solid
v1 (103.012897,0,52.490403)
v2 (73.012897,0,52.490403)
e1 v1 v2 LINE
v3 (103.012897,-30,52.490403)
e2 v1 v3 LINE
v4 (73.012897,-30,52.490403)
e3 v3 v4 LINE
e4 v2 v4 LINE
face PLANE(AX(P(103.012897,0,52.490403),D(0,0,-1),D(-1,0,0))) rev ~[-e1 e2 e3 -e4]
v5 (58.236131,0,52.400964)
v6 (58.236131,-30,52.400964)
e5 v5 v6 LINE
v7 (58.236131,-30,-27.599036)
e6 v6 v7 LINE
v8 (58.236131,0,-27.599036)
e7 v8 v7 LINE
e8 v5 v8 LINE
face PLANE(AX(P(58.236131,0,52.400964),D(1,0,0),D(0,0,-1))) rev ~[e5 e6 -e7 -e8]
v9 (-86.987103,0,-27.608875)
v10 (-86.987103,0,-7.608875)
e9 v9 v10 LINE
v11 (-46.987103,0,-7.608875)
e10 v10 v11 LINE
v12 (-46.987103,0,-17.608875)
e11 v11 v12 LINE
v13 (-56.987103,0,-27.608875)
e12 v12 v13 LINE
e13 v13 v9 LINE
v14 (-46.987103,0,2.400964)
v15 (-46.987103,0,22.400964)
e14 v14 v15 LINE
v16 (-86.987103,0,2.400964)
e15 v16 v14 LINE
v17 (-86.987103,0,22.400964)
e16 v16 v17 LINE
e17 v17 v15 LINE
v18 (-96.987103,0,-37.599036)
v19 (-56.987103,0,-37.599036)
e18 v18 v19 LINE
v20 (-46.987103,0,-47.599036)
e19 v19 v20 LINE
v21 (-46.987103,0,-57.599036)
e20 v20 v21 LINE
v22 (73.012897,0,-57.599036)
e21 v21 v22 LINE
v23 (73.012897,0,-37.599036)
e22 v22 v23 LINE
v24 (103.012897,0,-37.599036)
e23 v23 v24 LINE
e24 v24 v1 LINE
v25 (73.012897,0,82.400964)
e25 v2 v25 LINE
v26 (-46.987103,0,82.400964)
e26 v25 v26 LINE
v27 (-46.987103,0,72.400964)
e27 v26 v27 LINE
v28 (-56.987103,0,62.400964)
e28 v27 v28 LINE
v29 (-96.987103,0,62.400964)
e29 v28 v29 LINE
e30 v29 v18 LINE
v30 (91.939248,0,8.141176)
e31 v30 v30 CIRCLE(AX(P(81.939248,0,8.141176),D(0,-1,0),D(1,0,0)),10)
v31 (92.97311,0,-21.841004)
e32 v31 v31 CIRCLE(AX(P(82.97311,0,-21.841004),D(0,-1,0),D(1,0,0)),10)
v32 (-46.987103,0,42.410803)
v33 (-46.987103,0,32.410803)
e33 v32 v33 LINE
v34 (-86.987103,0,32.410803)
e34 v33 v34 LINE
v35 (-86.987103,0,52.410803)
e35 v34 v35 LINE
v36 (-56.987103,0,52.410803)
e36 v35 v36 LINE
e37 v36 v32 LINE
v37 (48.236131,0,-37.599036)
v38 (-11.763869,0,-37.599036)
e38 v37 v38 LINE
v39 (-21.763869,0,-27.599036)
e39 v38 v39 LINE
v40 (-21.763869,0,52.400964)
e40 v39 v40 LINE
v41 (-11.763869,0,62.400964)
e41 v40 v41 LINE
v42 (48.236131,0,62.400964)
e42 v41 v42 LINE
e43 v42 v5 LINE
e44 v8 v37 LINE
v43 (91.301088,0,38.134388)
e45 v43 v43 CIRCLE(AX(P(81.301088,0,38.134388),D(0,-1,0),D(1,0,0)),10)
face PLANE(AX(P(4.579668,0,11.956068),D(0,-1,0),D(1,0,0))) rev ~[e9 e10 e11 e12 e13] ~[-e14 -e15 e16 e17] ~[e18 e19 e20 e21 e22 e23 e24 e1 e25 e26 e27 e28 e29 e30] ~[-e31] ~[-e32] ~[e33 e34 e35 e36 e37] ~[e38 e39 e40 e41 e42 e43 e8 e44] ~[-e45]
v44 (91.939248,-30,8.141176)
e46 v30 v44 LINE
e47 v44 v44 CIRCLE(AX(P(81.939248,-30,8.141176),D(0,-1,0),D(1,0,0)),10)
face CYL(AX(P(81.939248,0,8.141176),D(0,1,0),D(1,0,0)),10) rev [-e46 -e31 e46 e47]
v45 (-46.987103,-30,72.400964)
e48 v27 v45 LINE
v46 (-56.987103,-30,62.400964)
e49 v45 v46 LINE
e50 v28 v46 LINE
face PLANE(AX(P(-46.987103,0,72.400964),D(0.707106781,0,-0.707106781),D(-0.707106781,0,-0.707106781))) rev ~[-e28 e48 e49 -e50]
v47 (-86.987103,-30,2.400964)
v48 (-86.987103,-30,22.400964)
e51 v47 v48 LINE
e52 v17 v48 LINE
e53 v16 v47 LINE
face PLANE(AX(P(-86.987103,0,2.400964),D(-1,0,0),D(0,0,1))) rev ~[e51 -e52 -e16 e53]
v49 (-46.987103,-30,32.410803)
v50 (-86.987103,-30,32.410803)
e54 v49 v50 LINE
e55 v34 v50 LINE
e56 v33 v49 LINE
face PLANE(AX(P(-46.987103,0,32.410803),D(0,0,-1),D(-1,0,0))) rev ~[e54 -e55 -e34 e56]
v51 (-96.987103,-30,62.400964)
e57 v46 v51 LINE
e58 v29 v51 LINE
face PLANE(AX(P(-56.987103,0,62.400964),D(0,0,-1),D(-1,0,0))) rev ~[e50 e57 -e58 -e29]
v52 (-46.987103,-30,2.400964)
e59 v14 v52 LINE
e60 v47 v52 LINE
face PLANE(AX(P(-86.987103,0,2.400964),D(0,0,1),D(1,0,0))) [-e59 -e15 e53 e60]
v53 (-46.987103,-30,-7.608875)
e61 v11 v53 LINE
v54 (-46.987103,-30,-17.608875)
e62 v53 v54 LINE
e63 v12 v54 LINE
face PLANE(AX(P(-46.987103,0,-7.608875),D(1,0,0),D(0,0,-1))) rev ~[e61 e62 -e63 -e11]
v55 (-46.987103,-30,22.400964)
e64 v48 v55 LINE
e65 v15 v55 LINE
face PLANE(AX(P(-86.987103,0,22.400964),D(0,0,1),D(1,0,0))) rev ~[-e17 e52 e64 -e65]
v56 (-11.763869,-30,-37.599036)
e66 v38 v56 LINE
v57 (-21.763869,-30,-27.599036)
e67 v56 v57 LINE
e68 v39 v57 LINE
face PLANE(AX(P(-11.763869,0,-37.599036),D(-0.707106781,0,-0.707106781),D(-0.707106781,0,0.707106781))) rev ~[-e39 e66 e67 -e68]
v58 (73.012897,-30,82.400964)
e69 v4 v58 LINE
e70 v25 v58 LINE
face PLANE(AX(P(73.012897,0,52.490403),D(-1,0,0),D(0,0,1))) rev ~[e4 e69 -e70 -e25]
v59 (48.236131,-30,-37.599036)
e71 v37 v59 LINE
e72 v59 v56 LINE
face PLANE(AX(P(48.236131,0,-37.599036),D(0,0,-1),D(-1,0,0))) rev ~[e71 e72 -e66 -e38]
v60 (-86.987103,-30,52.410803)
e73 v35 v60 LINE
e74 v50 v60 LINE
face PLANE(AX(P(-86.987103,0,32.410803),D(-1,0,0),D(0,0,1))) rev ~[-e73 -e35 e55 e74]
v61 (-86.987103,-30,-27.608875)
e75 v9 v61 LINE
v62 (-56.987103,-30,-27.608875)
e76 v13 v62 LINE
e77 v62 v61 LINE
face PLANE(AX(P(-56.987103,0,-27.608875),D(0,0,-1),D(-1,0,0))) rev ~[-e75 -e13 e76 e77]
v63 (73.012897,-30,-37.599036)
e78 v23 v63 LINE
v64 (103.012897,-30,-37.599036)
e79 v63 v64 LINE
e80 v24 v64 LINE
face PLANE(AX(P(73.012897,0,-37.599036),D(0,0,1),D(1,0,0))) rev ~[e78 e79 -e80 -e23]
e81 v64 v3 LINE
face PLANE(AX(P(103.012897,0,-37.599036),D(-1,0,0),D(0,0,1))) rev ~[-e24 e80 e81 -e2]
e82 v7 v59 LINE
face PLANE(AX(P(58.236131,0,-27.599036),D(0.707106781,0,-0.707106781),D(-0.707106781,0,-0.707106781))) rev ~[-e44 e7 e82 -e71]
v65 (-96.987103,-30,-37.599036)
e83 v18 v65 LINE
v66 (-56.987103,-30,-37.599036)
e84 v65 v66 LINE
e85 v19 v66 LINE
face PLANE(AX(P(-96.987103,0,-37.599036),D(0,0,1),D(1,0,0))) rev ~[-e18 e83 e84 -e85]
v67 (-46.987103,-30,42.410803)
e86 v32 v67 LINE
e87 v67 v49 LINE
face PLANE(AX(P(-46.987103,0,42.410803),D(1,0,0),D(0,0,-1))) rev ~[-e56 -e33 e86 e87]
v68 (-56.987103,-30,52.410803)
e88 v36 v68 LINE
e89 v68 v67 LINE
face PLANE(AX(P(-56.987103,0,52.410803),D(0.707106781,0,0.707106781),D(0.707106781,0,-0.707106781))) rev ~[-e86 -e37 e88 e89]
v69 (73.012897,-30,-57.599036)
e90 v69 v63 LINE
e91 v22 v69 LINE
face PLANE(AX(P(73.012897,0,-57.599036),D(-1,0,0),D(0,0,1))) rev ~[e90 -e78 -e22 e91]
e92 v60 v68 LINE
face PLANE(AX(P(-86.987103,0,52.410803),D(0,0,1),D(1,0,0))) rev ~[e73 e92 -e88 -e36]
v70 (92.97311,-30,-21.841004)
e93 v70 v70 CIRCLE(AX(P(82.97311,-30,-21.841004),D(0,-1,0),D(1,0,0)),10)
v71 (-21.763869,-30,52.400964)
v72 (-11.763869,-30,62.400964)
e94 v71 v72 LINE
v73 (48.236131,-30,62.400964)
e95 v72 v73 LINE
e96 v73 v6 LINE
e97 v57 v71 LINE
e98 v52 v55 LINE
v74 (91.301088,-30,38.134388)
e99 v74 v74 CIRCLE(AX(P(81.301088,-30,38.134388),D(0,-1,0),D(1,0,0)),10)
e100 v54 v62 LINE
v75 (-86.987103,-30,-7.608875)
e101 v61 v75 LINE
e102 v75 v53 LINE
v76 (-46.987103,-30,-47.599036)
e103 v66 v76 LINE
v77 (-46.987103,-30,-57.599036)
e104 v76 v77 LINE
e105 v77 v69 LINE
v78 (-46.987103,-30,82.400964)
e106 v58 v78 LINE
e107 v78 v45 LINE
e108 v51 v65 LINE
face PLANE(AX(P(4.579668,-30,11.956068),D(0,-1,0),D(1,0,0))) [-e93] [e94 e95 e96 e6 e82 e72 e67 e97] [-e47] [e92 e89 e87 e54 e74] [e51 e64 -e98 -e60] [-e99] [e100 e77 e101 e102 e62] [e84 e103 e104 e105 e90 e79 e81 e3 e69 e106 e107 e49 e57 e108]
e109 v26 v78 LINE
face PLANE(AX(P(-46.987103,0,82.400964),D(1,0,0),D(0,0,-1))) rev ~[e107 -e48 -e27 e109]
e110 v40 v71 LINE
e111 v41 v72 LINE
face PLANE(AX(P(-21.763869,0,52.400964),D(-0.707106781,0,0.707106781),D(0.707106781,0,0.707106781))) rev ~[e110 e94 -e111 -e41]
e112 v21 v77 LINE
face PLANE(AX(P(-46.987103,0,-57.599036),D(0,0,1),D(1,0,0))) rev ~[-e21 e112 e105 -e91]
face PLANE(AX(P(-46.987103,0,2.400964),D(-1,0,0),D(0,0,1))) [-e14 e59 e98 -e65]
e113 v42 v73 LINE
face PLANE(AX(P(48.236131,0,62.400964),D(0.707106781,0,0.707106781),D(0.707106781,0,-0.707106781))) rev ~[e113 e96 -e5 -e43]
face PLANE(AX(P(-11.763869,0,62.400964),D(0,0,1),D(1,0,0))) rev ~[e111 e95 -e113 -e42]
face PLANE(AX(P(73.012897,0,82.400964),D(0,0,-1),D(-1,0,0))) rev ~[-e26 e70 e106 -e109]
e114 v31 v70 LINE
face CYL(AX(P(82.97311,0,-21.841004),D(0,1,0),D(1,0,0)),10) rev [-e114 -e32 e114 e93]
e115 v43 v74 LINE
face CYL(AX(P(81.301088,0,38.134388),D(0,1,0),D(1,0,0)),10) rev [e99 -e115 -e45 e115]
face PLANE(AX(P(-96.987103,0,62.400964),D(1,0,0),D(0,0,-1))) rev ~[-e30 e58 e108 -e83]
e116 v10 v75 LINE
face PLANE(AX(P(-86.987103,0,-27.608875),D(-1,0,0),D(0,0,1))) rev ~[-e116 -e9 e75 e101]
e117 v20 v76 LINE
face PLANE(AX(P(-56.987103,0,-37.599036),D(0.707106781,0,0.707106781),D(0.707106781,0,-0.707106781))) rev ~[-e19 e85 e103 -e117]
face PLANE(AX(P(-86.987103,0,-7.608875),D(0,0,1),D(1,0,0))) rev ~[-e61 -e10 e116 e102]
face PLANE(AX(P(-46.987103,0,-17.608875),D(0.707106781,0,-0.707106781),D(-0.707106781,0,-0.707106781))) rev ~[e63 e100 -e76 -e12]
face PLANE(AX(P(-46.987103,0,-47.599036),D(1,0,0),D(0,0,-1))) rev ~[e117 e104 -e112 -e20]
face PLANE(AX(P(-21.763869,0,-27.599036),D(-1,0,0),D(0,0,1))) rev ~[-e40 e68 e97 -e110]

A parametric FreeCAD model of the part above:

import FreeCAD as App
import Part
import Sketcher
from FreeCAD import Vector

doc = App.newDocument("Part")
body = doc.addObject("PartDesign::Body", "Body")

# Sketch on XZ plane
sketch1 = body.newObject("Sketcher::SketchObject", "Sketch")
sketch1.AttachmentSupport = (doc.getObject("XZ_Plane"), [""])
sketch1.MapMode = "FlatFace"
sketch1.addGeometry([
    Part.LineSegment(Vector(-47, 82, 0), Vector(-47, 72, 0)),  # 0
    Part.LineSegment(Vector(-47, 72, 0), Vector(-57, 62, 0)),  # 1
    Part.LineSegment(Vector(-57, 62, 0), Vector(-97, 62, 0)),  # 2
    Part.LineSegment(Vector(-97, 62, 0), Vector(-97, -38, 0)),  # 3
    Part.LineSegment(Vector(-97, -38, 0), Vector(-57, -38, 0)),  # 4
    Part.LineSegment(Vector(-57, -38, 0), Vector(-47, -48, 0)),  # 5
    Part.LineSegment(Vector(-47, -48, 0), Vector(-47, -58, 0)),  # 6
    Part.LineSegment(Vector(-47, -58, 0), Vector(73, -58, 0)),  # 7
    Part.LineSegment(Vector(73, -58, 0), Vector(73, -38, 0)),  # 8
    Part.LineSegment(Vector(73, -38, 0), Vector(103, -38, 0)),  # 9
    Part.LineSegment(Vector(103, -38, 0), Vector(103, 52, 0)),  # 10
    Part.LineSegment(Vector(103, 52, 0), Vector(73, 52, 0)),  # 11
    Part.LineSegment(Vector(73, 52, 0), Vector(73, 82, 0)),  # 12
    Part.LineSegment(Vector(73, 82, 0), Vector(-47, 82, 0)),  # 13
    Part.LineSegment(Vector(-47, -18, 0), Vector(-57, -28, 0)),  # 14
    Part.LineSegment(Vector(-57, -28, 0), Vector(-87, -28, 0)),  # 15
    Part.LineSegment(Vector(-87, -28, 0), Vector(-87, -8, 0)),  # 16
    Part.LineSegment(Vector(-87, -8, 0), Vector(-47, -8, 0)),  # 17
    Part.LineSegment(Vector(-47, -8, 0), Vector(-47, -18, 0)),  # 18
    Part.Circle(Vector(83, -22, 0), Vector(0, 0, 1), 10),  # 19
    Part.Circle(Vector(82, 8, 0), Vector(0, 0, 1), 10),  # 20
    Part.LineSegment(Vector(-47, 2, 0), Vector(-87, 2, 0)),  # 21
    Part.LineSegment(Vector(-87, 2, 0), Vector(-87, 22, 0)),  # 22
    Part.LineSegment(Vector(-87, 22, 0), Vector(-47, 22, 0)),  # 23
    Part.LineSegment(Vector(-47, 22, 0), Vector(-47, 2, 0)),  # 24
    Part.LineSegment(Vector(-47, 32, 0), Vector(-87, 32, 0)),  # 25
    Part.LineSegment(Vector(-87, 32, 0), Vector(-87, 52, 0)),  # 26
    Part.LineSegment(Vector(-87, 52, 0), Vector(-57, 52, 0)),  # 27
    Part.LineSegment(Vector(-57, 52, 0), Vector(-47, 42, 0)),  # 28
    Part.LineSegment(Vector(-47, 42, 0), Vector(-47, 32, 0)),  # 29
    Part.LineSegment(Vector(-22, -28, 0), Vector(-22, 52, 0)),  # 30
    Part.LineSegment(Vector(-22, 52, 0), Vector(-12, 62, 0)),  # 31
    Part.LineSegment(Vector(-12, 62, 0), Vector(48, 62, 0)),  # 32
    Part.LineSegment(Vector(48, 62, 0), Vector(58, 52, 0)),  # 33
    Part.LineSegment(Vector(58, 52, 0), Vector(58, -28, 0)),  # 34
    Part.LineSegment(Vector(58, -28, 0), Vector(48, -38, 0)),  # 35
    Part.LineSegment(Vector(48, -38, 0), Vector(-12, -38, 0)),  # 36
    Part.LineSegment(Vector(-12, -38, 0), Vector(-22, -28, 0)),  # 37
    Part.Circle(Vector(81, 38, 0), Vector(0, 0, 1), 10),  # 38
], False)
sketch1.addConstraint([
    Sketcher.Constraint("Coincident", 0, 2, 1, 1),
    Sketcher.Constraint("Coincident", 1, 2, 2, 1),
    Sketcher.Constraint("Coincident", 2, 2, 3, 1),
    Sketcher.Constraint("Coincident", 3, 2, 4, 1),
    Sketcher.Constraint("Coincident", 4, 2, 5, 1),
    Sketcher.Constraint("Coincident", 5, 2, 6, 1),
    Sketcher.Constraint("Coincident", 6, 2, 7, 1),
    Sketcher.Constraint("Coincident", 7, 2, 8, 1),
    Sketcher.Constraint("Coincident", 8, 2, 9, 1),
    Sketcher.Constraint("Coincident", 9, 2, 10, 1),
    Sketcher.Constraint("Coincident", 10, 2, 11, 1),
    Sketcher.Constraint("Coincident", 11, 2, 12, 1),
    Sketcher.Constraint("Coincident", 12, 2, 13, 1),
    Sketcher.Constraint("Coincident", 13, 2, 0, 1),
    Sketcher.Constraint("Coincident", 14, 2, 15, 1),
    Sketcher.Constraint("Coincident", 15, 2, 16, 1),
    Sketcher.Constraint("Coincident", 16, 2, 17, 1),
    Sketcher.Constraint("Coincident", 17, 2, 18, 1),
    Sketcher.Constraint("Coincident", 18, 2, 14, 1),
    Sketcher.Constraint("Coincident", 21, 2, 22, 1),
    Sketcher.Constraint("Coincident", 22, 2, 23, 1),
    Sketcher.Constraint("Coincident", 23, 2, 24, 1),
    Sketcher.Constraint("Coincident", 24, 2, 21, 1),
    Sketcher.Constraint("Coincident", 25, 2, 26, 1),
    Sketcher.Constraint("Coincident", 26, 2, 27, 1),
    Sketcher.Constraint("Coincident", 27, 2, 28, 1),
    Sketcher.Constraint("Coincident", 28, 2, 29, 1),
    Sketcher.Constraint("Coincident", 29, 2, 25, 1),
    Sketcher.Constraint("Coincident", 30, 2, 31, 1),
    Sketcher.Constraint("Coincident", 31, 2, 32, 1),
    Sketcher.Constraint("Coincident", 32, 2, 33, 1),
    Sketcher.Constraint("Coincident", 33, 2, 34, 1),
    Sketcher.Constraint("Coincident", 34, 2, 35, 1),
    Sketcher.Constraint("Coincident", 35, 2, 36, 1),
    Sketcher.Constraint("Coincident", 36, 2, 37, 1),
    Sketcher.Constraint("Coincident", 37, 2, 30, 1),
    Sketcher.Constraint("Vertical", 0),
    Sketcher.Constraint("Horizontal", 2),
    Sketcher.Constraint("Vertical", 3),
    Sketcher.Constraint("Horizontal", 4),
    Sketcher.Constraint("Vertical", 6),
    Sketcher.Constraint("Horizontal", 7),
    Sketcher.Constraint("Vertical", 8),
    Sketcher.Constraint("Horizontal", 9),
    Sketcher.Constraint("Vertical", 10),
    Sketcher.Constraint("Horizontal", 11),
    Sketcher.Constraint("Vertical", 12),
    Sketcher.Constraint("Horizontal", 13),
    Sketcher.Constraint("Horizontal", 15),
    Sketcher.Constraint("Vertical", 16),
    Sketcher.Constraint("Horizontal", 17),
    Sketcher.Constraint("Vertical", 18),
    Sketcher.Constraint("Horizontal", 21),
    Sketcher.Constraint("Vertical", 22),
    Sketcher.Constraint("Horizontal", 23),
    Sketcher.Constraint("Vertical", 24),
    Sketcher.Constraint("Horizontal", 25),
    Sketcher.Constraint("Vertical", 26),
    Sketcher.Constraint("Horizontal", 27),
    Sketcher.Constraint("Vertical", 29),
    Sketcher.Constraint("Vertical", 30),
    Sketcher.Constraint("Horizontal", 32),
    Sketcher.Constraint("Vertical", 34),
    Sketcher.Constraint("Horizontal", 36),
    Sketcher.Constraint("Equal", 19, 20),
    Sketcher.Constraint("Equal", 20, 38),
    Sketcher.Constraint("Perpendicular", 1, 5),
    Sketcher.Constraint("Perpendicular", 5, 14),
    Sketcher.Constraint("Perpendicular", 14, 28),
    Sketcher.Constraint("Perpendicular", 28, 31),
    Sketcher.Constraint("Perpendicular", 31, 33),
    Sketcher.Constraint("Perpendicular", 33, 35),
    Sketcher.Constraint("Perpendicular", 35, 37),
    Sketcher.Constraint("Horizontal", 4, 2, 8, 2),
    Sketcher.Constraint("Horizontal", 2, 2, 31, 2),
    Sketcher.Constraint("Horizontal", 30, 2, 33, 2),
    Sketcher.Constraint("Horizontal", 9, 2, 35, 2),
    Sketcher.Constraint("Horizontal", 34, 2, 37, 2),
    Sketcher.Constraint("Vertical", 1, 2, 4, 2),
    Sketcher.Constraint("Vertical", 0, 2, 5, 2),
    Sketcher.Constraint("Vertical", 8, 2, 11, 2),
    Sketcher.Constraint("Vertical", 4, 2, 14, 2),
    Sketcher.Constraint("Vertical", 13, 2, 17, 2),
    Sketcher.Constraint("Vertical", 16, 2, 21, 2),
    Sketcher.Constraint("Vertical", 18, 2, 23, 2),
    Sketcher.Constraint("Vertical", 22, 2, 25, 2),
    Sketcher.Constraint("Vertical", 14, 2, 27, 2),
    Sketcher.Constraint("Vertical", 24, 2, 28, 2),
    Sketcher.Constraint("Vertical", 32, 2, 35, 2),
    Sketcher.Constraint("Vertical", 31, 2, 36, 2),
    Sketcher.Constraint("Equal", 11, 15),
    Sketcher.Constraint("Equal", 4, 17),
    Sketcher.Constraint("Equal", 0, 6),
    Sketcher.Constraint("Equal", 8, 16),
    Sketcher.Constraint("Equal", 16, 22),
    Sketcher.Constraint("Equal", 24, 26),
    Sketcher.Constraint("Equal", 28, 31),
    Sketcher.Constraint("Diameter", 19, 20.0),
    Sketcher.Constraint("DistanceX", 2, 2, 2, 1, 40.0),
    Sketcher.Constraint("DistanceX", 7, 1, 7, 2, 120.0),
    Sketcher.Constraint("DistanceX", 9, 1, 9, 2, 30.0),
    Sketcher.Constraint("DistanceX", 32, 1, 32, 2, 60.0),
    Sketcher.Constraint("DistanceY", 0, 2, 0, 1, 10.0),
    Sketcher.Constraint("DistanceY", 3, 2, 3, 1, 100.0),
    Sketcher.Constraint("DistanceY", 3, 2, 21, 2, 40.0),
    Sketcher.Constraint("DistanceY", 10, 1, 10, 2, 90.089439),
    Sketcher.Constraint("DistanceX", -1, 1, 19, 3, 82.97311),
    Sketcher.Constraint("DistanceX", -1, 1, 20, 3, 81.939248),
    Sketcher.Constraint("DistanceX", 30, 2, -1, 1, 21.763869),
    Sketcher.Constraint("DistanceY", 19, 3, 20, 3, 29.98218),
    Sketcher.Constraint("DistanceX", 38, 3, 20, 3, 0.63816),
    Sketcher.Constraint("DistanceY", 20, 3, 38, 3, 29.993212),
    Sketcher.Constraint("DistanceX", 0, 2, 38, 3, 128.288191),
    Sketcher.Constraint("DistanceY", 20, 3, 0, 2, 64.259788),
    Sketcher.Constraint("DistanceY", 4, 2, 14, 2, 9.990161),
    Sketcher.Constraint("DistanceY", 22, 2, 25, 2, 10.009839),
    Sketcher.Constraint("DistanceY", 19, 3, -1, 1, 21.841004),
])
pad1 = body.newObject("PartDesign::Pad", "Pad")
pad1.Profile = sketch1
pad1.Length = 30

doc.recompute()
